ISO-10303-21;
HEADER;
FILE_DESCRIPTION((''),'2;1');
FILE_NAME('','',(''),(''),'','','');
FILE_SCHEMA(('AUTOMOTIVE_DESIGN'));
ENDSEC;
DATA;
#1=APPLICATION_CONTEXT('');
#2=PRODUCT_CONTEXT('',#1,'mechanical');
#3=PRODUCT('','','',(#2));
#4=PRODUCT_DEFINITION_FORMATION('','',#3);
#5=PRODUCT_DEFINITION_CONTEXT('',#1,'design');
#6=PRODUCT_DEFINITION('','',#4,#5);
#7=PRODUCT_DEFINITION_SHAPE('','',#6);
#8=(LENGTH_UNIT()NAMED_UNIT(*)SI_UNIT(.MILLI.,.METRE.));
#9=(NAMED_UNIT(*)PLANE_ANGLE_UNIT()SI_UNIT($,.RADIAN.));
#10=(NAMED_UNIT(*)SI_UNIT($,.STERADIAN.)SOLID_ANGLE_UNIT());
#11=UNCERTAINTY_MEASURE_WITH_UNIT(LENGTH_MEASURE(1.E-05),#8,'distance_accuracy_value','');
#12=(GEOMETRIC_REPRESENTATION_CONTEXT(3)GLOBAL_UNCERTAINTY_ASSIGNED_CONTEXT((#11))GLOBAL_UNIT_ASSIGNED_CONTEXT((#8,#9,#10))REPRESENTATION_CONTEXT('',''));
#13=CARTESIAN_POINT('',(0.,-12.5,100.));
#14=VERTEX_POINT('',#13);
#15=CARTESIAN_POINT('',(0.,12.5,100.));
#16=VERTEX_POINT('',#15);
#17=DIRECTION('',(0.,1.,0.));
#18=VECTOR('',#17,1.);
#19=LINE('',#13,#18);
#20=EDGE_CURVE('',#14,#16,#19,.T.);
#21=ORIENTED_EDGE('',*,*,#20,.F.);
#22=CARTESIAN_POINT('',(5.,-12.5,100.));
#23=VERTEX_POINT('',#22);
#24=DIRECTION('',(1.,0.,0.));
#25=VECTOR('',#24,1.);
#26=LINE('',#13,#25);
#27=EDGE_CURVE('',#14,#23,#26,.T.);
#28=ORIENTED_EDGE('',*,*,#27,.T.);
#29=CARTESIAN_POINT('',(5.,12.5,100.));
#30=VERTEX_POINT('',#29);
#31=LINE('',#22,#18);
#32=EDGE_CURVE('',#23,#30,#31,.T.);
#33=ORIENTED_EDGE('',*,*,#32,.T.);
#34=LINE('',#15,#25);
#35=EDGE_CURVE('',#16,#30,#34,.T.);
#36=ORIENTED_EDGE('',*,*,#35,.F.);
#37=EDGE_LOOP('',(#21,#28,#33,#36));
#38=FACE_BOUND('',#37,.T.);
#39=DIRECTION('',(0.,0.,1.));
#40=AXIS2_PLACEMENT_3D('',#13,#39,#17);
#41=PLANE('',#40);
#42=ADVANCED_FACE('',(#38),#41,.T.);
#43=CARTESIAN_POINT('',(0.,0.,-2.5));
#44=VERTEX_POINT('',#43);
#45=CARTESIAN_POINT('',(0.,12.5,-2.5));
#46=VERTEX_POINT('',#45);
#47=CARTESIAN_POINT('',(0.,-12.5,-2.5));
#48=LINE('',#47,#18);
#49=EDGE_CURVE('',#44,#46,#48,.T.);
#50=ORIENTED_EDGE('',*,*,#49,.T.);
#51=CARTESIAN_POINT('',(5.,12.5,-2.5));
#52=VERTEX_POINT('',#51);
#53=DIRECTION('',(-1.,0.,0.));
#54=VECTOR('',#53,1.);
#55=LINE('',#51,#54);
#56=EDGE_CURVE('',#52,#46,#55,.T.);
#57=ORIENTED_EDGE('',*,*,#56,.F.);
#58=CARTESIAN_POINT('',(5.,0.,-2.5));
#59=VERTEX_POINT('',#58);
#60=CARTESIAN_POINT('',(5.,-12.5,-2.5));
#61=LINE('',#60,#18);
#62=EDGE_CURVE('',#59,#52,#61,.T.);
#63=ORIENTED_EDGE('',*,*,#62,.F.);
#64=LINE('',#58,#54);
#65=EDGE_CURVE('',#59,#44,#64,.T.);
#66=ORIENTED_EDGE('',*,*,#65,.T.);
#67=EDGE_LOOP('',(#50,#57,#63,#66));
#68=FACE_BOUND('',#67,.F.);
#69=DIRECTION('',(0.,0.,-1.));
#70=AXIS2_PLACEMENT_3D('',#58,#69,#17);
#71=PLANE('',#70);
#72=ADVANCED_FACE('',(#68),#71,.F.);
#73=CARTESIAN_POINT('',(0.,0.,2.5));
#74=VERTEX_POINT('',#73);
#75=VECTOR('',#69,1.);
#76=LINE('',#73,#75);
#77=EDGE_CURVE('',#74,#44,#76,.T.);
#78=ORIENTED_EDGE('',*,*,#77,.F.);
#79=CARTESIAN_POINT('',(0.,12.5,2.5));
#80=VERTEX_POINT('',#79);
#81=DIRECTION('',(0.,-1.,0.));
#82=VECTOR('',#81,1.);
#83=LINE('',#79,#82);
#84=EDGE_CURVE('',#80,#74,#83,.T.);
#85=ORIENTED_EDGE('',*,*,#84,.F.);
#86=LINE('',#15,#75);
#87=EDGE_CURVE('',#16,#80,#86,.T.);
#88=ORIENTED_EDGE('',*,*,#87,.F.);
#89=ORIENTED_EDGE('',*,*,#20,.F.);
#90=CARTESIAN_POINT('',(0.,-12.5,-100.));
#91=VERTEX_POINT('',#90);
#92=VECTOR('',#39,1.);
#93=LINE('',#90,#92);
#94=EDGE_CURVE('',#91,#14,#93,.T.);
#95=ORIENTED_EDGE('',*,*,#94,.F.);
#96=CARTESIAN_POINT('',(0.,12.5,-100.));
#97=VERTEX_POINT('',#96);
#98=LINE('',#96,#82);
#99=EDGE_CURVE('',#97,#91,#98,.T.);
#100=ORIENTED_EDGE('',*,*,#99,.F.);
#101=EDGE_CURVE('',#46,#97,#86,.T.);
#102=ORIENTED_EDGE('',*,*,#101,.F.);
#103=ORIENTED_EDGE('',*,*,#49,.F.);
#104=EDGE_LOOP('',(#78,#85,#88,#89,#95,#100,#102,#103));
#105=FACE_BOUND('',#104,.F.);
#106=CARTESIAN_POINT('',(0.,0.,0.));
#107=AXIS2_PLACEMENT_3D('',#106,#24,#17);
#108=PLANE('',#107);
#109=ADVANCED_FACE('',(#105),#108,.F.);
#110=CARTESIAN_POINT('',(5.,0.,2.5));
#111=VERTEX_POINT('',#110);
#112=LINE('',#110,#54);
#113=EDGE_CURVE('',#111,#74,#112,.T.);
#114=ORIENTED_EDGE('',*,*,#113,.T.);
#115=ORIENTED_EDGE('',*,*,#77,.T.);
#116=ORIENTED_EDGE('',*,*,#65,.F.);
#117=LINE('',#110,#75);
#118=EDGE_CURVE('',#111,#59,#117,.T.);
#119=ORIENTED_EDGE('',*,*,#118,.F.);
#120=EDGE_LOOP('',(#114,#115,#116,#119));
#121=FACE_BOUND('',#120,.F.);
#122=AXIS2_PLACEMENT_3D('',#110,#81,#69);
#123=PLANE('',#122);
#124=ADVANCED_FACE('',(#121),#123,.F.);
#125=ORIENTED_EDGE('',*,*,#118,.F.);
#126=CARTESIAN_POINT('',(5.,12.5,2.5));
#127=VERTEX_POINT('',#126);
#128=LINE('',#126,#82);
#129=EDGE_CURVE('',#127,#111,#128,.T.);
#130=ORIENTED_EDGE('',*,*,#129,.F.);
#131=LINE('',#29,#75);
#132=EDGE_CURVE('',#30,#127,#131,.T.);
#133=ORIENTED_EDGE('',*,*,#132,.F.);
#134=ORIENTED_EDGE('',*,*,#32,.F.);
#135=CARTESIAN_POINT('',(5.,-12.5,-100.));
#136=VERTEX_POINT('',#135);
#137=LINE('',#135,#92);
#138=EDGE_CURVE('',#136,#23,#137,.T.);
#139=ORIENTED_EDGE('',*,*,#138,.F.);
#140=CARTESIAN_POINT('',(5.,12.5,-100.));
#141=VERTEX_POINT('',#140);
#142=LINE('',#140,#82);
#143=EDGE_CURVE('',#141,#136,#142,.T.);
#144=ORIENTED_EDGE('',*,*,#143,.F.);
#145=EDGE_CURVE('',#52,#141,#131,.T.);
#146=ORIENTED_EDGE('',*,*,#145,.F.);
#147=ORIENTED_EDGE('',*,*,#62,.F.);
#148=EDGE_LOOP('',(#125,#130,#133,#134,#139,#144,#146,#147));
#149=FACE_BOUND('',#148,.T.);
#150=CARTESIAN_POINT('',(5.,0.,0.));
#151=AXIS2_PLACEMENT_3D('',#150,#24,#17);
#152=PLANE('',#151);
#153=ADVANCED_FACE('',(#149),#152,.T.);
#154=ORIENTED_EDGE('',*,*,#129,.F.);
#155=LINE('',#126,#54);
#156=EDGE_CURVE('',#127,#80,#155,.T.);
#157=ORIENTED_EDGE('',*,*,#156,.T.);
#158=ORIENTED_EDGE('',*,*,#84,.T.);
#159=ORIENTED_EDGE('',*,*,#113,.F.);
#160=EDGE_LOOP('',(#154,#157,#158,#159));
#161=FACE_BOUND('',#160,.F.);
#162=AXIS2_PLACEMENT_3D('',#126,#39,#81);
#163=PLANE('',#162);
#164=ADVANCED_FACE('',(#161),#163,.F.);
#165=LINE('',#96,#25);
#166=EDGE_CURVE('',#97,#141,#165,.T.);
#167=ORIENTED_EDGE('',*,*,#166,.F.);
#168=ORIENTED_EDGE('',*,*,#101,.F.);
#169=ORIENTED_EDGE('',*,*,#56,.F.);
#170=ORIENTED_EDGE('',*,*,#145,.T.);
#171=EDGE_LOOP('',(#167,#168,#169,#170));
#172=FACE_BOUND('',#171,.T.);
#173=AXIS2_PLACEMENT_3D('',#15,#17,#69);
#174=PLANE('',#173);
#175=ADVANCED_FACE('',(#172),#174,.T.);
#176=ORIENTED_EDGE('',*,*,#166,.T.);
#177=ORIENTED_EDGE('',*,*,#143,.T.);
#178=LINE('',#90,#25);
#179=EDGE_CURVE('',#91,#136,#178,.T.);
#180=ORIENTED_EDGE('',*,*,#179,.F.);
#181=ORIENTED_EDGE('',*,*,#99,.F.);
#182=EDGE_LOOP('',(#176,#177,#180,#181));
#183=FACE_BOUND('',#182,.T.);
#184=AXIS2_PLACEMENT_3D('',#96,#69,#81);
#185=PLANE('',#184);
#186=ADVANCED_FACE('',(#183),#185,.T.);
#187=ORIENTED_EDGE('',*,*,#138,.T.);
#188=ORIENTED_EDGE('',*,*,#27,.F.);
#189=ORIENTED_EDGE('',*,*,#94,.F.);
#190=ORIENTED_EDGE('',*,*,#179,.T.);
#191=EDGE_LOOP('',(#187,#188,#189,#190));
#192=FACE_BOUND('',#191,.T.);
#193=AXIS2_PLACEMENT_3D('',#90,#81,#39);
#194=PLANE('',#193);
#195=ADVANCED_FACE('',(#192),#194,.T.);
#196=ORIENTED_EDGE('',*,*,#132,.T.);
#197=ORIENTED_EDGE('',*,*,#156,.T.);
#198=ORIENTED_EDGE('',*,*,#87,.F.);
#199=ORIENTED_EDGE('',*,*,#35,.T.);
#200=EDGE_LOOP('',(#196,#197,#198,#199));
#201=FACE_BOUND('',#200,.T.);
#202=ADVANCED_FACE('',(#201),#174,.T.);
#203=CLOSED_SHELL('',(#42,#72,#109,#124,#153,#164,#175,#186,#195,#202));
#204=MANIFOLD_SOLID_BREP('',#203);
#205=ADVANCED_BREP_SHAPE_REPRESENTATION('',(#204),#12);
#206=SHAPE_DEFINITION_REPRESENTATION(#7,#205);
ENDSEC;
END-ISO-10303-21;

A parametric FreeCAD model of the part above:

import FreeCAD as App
import Part
import Sketcher
from FreeCAD import Vector

doc = App.newDocument("Part")
body = doc.addObject("PartDesign::Body", "Body")

# Sketch on YZ plane
sketch1 = body.newObject("Sketcher::SketchObject", "Sketch")
sketch1.AttachmentSupport = (doc.getObject("YZ_Plane"), [""])
sketch1.MapMode = "FlatFace"
sketch1.addGeometry(Part.LineSegment(Vector(12.5, 100, 0), Vector(-12.5, 100, 0)), False)
sketch1.addGeometry(Part.LineSegment(Vector(-12.5, 100, 0), Vector(-12.5, -100, 0)), False)
sketch1.addGeometry(Part.LineSegment(Vector(-12.5, -100, 0), Vector(12.5, -100, 0)), False)
sketch1.addGeometry(Part.LineSegment(Vector(12.5, -100, 0), Vector(12.5, 100, 0)), False)
sketch1.addConstraint(Sketcher.Constraint("Coincident", 0, 2, 1, 1))
sketch1.addConstraint(Sketcher.Constraint("Coincident", 1, 2, 2, 1))
sketch1.addConstraint(Sketcher.Constraint("Coincident", 2, 2, 3, 1))
sketch1.addConstraint(Sketcher.Constraint("Coincident", 3, 2, 0, 1))
sketch1.addConstraint(Sketcher.Constraint("Horizontal", 0))
sketch1.addConstraint(Sketcher.Constraint("Vertical", 1))
sketch1.addConstraint(Sketcher.Constraint("Horizontal", 2))
sketch1.addConstraint(Sketcher.Constraint("Vertical", 3))
sketch1.addConstraint(Sketcher.Constraint("Symmetric", 0, 2, 2, 2, -1, 1))
sketch1.addConstraint(Sketcher.Constraint("DistanceX", 0, 2, 0, 1, 25.0))
sketch1.addConstraint(Sketcher.Constraint("DistanceY", 1, 2, 1, 1, 200.0))
pad1 = body.newObject("PartDesign::Pad", "Pad")
pad1.Profile = sketch1
pad1.Length = 5

# Sketch on YZ plane
sketch2 = body.newObject("Sketcher::SketchObject", "Sketch001")
sketch2.AttachmentSupport = (doc.getObject("YZ_Plane"), [""])
sketch2.MapMode = "FlatFace"
sketch2.AttachmentOffset = App.Placement(Vector(0, 0, 5), App.Rotation())
sketch2.addGeometry(Part.LineSegment(Vector(0, -2.5, 0), Vector(12.5, -2.5, 0)), False)
sketch2.addGeometry(Part.LineSegment(Vector(12.5, -2.5, 0), Vector(12.5, 2.5, 0)), False)
sketch2.addGeometry(Part.LineSegment(Vector(12.5, 2.5, 0), Vector(0, 2.5, 0)), False)
sketch2.addGeometry(Part.LineSegment(Vector(0, 2.5, 0), Vector(0, -2.5, 0)), False)
sketch2.addConstraint(Sketcher.Constraint("Coincident", 0, 2, 1, 1))
sketch2.addConstraint(Sketcher.Constraint("Coincident", 1, 2, 2, 1))
sketch2.addConstraint(Sketcher.Constraint("Coincident", 2, 2, 3, 1))
sketch2.addConstraint(Sketcher.Constraint("Coincident", 3, 2, 0, 1))
sketch2.addConstraint(Sketcher.Constraint("Horizontal", 0))
sketch2.addConstraint(Sketcher.Constraint("Vertical", 1))
sketch2.addConstraint(Sketcher.Constraint("Horizontal", 2))
sketch2.addConstraint(Sketcher.Constraint("Vertical", 3))
sketch2.addConstraint(Sketcher.Constraint("Symmetric", 2, 2, 3, 2, -1, 1))
sketch2.addConstraint(Sketcher.Constraint("DistanceY", 1, 1, 1, 2, 5.0))
sketch2.addConstraint(Sketcher.Constraint("DistanceX", 0, 1, 0, 2, 12.5))
pocket1 = body.newObject("PartDesign::Pocket", "Pocket")
pocket1.Profile = sketch2
pocket1.Length = 5

doc.recompute()
